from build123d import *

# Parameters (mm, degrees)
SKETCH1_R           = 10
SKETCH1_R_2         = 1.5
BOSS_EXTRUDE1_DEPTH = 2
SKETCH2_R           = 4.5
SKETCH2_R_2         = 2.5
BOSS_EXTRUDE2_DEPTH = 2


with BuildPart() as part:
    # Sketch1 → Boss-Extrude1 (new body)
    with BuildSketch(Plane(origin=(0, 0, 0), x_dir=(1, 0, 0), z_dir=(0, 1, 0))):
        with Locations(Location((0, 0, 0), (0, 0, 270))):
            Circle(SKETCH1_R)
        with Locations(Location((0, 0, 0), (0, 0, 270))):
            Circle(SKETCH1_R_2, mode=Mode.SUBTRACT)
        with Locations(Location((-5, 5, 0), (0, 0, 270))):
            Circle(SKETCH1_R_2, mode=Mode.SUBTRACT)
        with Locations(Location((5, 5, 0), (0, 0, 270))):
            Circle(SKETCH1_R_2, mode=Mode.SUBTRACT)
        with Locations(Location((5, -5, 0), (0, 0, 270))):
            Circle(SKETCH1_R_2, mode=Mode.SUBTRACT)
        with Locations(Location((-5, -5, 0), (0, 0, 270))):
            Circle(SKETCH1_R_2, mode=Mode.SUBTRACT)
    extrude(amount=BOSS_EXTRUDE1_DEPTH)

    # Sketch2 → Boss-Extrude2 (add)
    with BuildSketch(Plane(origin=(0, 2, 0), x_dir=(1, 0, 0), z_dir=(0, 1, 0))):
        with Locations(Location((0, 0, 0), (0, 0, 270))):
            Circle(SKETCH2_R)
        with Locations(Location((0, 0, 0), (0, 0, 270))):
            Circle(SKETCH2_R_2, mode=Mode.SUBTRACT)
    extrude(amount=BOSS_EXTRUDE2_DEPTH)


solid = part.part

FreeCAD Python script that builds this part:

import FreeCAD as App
import Part
import Sketcher
Q = App.Units.Quantity

doc = App.newDocument("Part")
body = doc.addObject("PartDesign::Body", "Body")

sketch1 = body.newObject("Sketcher::SketchObject", "Sketch")
sketch1.AttachmentSupport = (doc.getObject("XZ_Plane"), [""])
sketch1.MapMode = "FlatFace"
sketch1.addGeometry([
    Part.Circle(App.Vector(0, 0, 0), App.Vector(0, 0, 1), 10),
    Part.Circle(App.Vector(-5, -5, 0), App.Vector(0, 0, 1), 1.5),
    Part.Circle(App.Vector(-5, 5, 0), App.Vector(0, 0, 1), 1.5),
    Part.Circle(App.Vector(0, 0, 0), App.Vector(0, 0, 1), 1.5),
    Part.Circle(App.Vector(5, -5, 0), App.Vector(0, 0, 1), 1.5),
    Part.Circle(App.Vector(5, 5, 0), App.Vector(0, 0, 1), 1.5),
], False)
sketch1.addConstraint([
    Sketcher.Constraint("Coincident", 0, 3, -1, 1),
    Sketcher.Constraint("Coincident", 3, 3, -1, 1),
    Sketcher.Constraint("Equal", 1, 2),
    Sketcher.Constraint("Equal", 2, 3),
    Sketcher.Constraint("Equal", 3, 4),
    Sketcher.Constraint("Equal", 4, 5),
    Sketcher.Constraint("Symmetric", 2, 3, 4, 3, -1, 1),
    Sketcher.Constraint("Symmetric", 1, 3, 5, 3, -1, 1),
    Sketcher.Constraint("Symmetric", 1, 3, 4, 3, -2),
    Sketcher.Constraint("Diameter", 0, Q("20 mm")),
    Sketcher.Constraint("Diameter", 1, Q("3 mm")),
    Sketcher.Constraint("DistanceX", 1, 3, -1, 1, Q("5 mm")),
    Sketcher.Constraint("DistanceY", 1, 3, -1, 1, Q("5 mm")),
])
pad1 = body.newObject("PartDesign::Pad", "Pad")
pad1.Profile = sketch1
pad1.Length = 2
pad1.Reversed = True

sketch2 = body.newObject("Sketcher::SketchObject", "Sketch001")
sketch2.AttachmentSupport = (doc.getObject("XZ_Plane"), [""])
sketch2.MapMode = "FlatFace"
sketch2.AttachmentOffset = App.Placement(App.Vector(0, 0, -2), App.Rotation())
sketch2.addGeometry([
    Part.Circle(App.Vector(0, 0, 0), App.Vector(0, 0, 1), 4.5),
    Part.Circle(App.Vector(0, 0, 0), App.Vector(0, 0, 1), 2.5),
], False)
sketch2.addConstraint([
    Sketcher.Constraint("Coincident", 0, 3, -1, 1),
    Sketcher.Constraint("Coincident", 1, 3, -1, 1),
    Sketcher.Constraint("Diameter", 0, Q("9 mm")),
    Sketcher.Constraint("Diameter", 1, Q("5 mm")),
])
pad2 = body.newObject("PartDesign::Pad", "Pad001")
pad2.Profile = sketch2
pad2.Length = 2
pad2.Reversed = True

doc.recompute()
